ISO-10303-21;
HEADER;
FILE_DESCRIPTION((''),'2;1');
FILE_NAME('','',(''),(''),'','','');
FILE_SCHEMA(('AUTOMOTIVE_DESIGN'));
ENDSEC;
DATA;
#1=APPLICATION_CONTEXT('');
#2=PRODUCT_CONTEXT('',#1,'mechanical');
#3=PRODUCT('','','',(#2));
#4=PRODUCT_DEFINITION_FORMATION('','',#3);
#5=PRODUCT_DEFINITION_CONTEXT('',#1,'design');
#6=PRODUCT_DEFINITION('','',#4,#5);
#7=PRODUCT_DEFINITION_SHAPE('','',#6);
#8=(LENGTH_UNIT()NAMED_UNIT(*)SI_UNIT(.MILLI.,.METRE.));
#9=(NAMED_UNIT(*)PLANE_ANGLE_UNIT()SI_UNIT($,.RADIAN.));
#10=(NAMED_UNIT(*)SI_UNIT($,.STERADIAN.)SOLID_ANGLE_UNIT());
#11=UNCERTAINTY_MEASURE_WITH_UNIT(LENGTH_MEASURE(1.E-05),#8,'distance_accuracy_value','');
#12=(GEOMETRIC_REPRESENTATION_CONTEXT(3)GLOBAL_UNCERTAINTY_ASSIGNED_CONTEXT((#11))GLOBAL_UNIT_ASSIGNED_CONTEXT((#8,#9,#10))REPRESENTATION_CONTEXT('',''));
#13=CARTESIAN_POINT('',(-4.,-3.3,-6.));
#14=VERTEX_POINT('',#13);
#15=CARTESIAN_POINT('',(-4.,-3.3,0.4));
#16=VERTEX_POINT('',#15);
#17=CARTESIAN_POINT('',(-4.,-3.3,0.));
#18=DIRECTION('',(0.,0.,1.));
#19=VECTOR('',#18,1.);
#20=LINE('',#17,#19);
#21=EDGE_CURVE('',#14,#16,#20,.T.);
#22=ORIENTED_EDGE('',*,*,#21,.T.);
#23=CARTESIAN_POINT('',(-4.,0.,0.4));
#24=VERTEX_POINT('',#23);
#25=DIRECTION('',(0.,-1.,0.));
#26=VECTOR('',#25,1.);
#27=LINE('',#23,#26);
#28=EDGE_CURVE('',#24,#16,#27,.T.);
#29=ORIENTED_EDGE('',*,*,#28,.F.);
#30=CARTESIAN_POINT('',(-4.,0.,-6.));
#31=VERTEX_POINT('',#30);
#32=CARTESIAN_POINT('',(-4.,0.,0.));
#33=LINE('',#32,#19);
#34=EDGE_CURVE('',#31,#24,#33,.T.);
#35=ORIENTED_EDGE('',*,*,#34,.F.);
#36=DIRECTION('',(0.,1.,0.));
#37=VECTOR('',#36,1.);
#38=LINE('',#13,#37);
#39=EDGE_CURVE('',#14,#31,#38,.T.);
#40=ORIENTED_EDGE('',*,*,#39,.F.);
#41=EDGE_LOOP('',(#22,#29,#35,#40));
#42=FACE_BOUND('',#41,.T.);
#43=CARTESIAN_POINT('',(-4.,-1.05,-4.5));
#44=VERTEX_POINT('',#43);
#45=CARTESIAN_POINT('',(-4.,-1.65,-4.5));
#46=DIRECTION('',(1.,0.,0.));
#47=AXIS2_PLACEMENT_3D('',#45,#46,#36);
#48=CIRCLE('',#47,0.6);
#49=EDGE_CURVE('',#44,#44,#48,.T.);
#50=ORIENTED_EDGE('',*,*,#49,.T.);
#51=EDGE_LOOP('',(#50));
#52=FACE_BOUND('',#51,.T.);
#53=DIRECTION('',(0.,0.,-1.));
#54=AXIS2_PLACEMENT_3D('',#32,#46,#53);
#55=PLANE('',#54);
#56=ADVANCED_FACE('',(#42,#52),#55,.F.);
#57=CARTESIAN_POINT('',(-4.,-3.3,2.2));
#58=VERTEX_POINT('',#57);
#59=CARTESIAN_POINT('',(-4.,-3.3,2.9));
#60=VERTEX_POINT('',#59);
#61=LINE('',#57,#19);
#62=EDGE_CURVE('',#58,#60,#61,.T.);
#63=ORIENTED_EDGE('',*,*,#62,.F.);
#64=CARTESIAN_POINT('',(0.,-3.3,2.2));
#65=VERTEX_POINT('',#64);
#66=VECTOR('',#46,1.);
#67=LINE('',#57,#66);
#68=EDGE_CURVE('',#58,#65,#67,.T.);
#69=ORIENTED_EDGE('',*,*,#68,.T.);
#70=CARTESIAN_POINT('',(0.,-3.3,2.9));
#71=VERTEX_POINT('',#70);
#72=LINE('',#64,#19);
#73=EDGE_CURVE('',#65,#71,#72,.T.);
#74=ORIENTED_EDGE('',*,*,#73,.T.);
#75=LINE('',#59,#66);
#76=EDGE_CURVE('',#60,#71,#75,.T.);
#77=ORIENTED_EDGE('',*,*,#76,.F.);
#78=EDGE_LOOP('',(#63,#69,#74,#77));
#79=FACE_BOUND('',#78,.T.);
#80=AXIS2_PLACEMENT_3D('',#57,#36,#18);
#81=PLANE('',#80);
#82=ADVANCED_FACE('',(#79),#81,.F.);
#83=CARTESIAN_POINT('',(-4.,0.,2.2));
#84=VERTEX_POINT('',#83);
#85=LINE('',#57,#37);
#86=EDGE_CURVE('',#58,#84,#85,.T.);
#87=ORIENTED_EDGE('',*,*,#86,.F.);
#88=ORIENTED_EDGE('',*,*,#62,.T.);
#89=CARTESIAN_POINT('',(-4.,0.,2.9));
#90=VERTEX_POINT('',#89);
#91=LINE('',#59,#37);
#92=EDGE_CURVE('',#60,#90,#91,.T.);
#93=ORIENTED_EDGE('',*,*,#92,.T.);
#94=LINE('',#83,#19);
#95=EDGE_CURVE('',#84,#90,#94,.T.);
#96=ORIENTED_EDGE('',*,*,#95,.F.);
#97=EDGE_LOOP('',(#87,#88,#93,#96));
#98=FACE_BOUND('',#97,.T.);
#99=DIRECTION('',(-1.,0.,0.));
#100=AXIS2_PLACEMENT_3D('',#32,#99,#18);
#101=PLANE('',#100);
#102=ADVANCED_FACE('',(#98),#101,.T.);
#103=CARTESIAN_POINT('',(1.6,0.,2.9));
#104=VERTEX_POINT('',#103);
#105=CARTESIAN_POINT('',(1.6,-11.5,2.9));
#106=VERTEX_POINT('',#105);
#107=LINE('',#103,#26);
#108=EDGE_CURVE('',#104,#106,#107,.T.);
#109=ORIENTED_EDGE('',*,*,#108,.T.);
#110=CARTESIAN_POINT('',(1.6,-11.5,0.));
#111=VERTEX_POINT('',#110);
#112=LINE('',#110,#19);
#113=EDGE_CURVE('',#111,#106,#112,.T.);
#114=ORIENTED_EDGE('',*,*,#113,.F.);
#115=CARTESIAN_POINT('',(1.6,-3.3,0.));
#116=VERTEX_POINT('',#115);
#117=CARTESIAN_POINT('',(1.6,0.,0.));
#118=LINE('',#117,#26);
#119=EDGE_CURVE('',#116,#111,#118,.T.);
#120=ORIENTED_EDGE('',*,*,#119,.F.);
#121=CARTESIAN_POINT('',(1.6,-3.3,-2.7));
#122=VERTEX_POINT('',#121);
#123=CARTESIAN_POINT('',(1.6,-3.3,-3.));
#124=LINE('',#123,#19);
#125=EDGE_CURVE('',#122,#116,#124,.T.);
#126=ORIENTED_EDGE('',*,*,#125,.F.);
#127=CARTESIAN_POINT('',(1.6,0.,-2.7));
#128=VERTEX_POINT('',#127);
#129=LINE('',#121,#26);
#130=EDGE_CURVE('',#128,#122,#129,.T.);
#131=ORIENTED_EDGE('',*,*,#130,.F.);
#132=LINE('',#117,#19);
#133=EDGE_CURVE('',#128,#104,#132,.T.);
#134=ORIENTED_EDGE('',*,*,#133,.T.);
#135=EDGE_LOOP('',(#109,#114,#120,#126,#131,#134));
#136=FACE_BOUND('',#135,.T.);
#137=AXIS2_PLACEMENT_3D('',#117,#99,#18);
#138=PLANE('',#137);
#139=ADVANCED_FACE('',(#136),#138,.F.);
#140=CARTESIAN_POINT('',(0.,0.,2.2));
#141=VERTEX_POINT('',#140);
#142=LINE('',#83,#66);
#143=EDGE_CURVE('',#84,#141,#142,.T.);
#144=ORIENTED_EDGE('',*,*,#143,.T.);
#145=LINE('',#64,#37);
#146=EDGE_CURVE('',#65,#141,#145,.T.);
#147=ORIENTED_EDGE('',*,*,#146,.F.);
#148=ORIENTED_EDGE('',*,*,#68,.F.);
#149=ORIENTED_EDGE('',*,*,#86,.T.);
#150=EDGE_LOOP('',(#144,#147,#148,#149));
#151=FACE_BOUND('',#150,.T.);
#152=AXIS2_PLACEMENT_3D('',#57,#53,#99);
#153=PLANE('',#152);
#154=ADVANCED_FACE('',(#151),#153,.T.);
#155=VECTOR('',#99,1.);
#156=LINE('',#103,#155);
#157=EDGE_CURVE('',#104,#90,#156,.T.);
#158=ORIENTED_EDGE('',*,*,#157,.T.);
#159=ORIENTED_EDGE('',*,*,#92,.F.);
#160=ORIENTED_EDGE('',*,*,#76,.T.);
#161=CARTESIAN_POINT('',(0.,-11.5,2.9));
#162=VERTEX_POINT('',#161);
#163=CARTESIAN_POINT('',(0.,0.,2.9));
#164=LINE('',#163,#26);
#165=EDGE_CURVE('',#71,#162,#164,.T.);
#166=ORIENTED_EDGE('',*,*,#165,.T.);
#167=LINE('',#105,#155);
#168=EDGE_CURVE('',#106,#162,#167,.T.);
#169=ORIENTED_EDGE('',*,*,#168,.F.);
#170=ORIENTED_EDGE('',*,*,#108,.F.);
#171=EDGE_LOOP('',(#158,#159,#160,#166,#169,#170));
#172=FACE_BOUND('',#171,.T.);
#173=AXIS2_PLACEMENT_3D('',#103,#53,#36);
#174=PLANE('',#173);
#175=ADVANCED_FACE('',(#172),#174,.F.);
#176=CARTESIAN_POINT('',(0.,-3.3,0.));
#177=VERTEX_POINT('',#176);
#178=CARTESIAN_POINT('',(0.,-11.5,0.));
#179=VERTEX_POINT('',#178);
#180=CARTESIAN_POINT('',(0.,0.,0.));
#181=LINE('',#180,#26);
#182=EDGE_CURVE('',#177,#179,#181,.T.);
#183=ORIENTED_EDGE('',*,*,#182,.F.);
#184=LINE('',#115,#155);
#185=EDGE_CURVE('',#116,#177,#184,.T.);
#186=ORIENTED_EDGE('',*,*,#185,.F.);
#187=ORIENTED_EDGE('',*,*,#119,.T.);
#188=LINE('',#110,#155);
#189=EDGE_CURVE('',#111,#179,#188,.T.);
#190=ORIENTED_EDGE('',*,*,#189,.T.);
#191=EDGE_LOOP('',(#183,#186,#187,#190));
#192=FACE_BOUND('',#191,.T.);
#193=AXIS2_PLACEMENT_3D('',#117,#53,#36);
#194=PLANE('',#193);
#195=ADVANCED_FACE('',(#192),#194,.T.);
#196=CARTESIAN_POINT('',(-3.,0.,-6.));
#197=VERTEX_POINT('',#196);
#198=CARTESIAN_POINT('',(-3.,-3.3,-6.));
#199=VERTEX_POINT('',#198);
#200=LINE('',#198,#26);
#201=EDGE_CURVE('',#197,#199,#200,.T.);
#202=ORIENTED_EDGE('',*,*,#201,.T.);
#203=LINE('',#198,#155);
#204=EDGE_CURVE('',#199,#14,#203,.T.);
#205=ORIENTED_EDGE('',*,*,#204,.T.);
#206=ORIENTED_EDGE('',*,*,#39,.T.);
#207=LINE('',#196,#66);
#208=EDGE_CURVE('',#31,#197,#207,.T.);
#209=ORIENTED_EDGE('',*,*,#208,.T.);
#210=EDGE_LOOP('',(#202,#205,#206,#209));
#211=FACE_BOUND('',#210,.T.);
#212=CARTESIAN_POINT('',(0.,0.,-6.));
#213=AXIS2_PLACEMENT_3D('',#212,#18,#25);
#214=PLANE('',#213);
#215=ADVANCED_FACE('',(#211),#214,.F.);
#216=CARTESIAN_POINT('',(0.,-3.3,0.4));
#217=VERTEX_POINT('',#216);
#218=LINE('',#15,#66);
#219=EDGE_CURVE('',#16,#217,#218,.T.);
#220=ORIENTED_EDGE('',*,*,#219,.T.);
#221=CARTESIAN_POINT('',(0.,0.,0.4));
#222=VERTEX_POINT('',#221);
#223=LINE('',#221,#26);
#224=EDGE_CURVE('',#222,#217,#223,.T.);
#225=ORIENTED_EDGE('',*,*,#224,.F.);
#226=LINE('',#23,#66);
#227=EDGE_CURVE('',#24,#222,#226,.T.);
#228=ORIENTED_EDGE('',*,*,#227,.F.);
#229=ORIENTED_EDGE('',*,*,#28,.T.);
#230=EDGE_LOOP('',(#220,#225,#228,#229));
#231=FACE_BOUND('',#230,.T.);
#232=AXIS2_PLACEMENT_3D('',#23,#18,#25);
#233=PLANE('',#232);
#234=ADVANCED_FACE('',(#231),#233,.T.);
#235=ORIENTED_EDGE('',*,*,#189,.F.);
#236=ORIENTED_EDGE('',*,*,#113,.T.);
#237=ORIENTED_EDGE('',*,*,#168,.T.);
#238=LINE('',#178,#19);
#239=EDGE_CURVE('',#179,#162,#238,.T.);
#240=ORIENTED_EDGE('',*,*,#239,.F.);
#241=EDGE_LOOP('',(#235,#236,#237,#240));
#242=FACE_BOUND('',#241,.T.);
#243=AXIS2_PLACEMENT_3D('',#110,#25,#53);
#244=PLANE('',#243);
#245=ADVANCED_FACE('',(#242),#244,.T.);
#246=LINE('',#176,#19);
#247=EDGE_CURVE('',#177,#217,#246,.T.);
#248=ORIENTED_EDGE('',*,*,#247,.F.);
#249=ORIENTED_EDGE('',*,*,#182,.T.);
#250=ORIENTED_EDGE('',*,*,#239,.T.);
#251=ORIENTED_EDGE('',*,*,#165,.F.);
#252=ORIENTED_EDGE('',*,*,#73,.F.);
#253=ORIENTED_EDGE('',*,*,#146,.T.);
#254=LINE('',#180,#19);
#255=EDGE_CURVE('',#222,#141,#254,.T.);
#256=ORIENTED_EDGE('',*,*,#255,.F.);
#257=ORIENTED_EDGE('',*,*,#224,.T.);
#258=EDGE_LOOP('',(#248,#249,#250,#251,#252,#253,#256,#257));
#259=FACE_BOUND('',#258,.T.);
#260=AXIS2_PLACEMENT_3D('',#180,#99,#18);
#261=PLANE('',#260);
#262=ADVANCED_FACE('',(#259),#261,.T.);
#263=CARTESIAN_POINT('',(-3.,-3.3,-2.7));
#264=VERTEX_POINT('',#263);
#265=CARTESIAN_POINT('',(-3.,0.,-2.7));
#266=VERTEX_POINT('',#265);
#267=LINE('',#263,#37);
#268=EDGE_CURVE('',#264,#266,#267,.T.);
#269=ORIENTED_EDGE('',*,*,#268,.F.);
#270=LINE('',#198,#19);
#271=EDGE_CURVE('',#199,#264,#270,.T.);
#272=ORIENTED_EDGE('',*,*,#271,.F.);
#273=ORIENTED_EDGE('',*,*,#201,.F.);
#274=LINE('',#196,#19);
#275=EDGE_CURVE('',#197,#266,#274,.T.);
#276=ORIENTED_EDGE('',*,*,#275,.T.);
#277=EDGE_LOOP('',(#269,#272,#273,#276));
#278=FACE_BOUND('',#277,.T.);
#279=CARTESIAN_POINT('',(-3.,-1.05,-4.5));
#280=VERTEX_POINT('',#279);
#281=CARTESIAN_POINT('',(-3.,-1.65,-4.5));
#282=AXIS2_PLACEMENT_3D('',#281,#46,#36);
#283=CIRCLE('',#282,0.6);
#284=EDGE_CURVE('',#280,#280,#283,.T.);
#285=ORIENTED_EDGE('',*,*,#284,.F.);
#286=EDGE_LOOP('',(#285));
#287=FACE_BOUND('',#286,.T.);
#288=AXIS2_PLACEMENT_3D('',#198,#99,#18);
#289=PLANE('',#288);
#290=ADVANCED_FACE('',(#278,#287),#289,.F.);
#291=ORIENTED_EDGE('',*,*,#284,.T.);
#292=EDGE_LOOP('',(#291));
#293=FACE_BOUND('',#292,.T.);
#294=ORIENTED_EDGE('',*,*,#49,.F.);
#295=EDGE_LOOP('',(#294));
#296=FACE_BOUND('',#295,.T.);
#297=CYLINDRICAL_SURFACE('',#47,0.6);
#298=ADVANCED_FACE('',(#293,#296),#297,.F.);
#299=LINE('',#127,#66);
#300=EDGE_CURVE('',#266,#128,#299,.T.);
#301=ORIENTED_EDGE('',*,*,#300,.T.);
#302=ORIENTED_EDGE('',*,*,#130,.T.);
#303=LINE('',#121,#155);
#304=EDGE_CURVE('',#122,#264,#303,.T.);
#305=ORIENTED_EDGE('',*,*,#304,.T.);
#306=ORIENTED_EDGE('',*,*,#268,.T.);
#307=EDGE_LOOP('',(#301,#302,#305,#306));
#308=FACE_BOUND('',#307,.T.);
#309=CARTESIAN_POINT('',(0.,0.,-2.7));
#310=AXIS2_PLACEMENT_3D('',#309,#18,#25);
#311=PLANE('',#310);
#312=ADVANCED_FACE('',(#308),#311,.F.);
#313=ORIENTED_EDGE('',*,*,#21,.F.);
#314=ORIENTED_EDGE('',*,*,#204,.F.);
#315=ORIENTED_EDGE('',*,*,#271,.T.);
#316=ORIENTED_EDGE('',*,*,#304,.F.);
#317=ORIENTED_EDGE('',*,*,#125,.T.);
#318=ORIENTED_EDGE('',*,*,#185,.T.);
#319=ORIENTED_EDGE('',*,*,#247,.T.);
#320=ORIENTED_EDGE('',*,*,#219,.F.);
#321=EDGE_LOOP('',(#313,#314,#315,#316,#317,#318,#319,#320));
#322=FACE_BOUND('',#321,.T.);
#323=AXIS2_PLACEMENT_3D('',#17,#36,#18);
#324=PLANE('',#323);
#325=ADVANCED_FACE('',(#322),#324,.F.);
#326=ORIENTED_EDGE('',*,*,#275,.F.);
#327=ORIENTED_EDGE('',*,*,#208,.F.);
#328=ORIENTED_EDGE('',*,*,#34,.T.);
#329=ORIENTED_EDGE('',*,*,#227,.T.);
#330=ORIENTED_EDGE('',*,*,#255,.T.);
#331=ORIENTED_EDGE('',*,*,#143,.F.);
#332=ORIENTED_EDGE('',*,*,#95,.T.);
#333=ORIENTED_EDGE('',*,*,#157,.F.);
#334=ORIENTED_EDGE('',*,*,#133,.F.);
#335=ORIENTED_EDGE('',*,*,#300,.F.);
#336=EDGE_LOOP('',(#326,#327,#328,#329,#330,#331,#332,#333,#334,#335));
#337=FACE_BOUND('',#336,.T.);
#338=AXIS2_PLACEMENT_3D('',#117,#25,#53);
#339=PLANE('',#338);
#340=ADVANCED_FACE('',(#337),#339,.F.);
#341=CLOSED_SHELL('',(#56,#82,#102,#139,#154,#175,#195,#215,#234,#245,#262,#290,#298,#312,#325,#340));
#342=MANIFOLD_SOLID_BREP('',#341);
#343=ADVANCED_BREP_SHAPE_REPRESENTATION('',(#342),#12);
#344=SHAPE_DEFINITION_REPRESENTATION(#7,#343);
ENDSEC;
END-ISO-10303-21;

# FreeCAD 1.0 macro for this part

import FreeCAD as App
import Part
import Sketcher
from FreeCAD import Vector
Q = App.Units.Quantity

doc = App.newDocument("Part")
body = doc.addObject("PartDesign::Body", "Body")

# Sketch on YZ plane
sketch1 = doc.addObject("Sketcher::SketchObject", "Sketch")
body.addObject(sketch1)
sketch1.AttachmentSupport = (doc.YZ_Plane, [""])
sketch1.MapMode = "FlatFace"
sketch1.addGeometry([
    Part.LineSegment(Vector(0, 2.9, 0), Vector(-11.5, 2.9, 0)),
    Part.LineSegment(Vector(-11.5, 2.9, 0), Vector(-11.5, 0, 0)),
    Part.LineSegment(Vector(-11.5, 0, 0), Vector(0, 0, 0)),
    Part.LineSegment(Vector(0, 0, 0), Vector(0, 2.9, 0)),
], False)
sketch1.addConstraint([
    Sketcher.Constraint("Coincident", 0, 2, 1, 1),
    Sketcher.Constraint("Coincident", 1, 2, 2, 1),
    Sketcher.Constraint("Coincident", 2, 2, 3, 1),
    Sketcher.Constraint("Coincident", 3, 2, 0, 1),
    Sketcher.Constraint("Horizontal", 0),
    Sketcher.Constraint("Vertical", 1),
    Sketcher.Constraint("Horizontal", 2),
    Sketcher.Constraint("Vertical", 3),
    Sketcher.Constraint("Coincident", 2, 2, -1, 1),
    Sketcher.Constraint("DistanceX", 0, 2, 0, 1, Q("11.5 mm")),
    Sketcher.Constraint("DistanceY", 1, 2, 1, 1, Q("2.9 mm")),
])
pad1 = doc.addObject("PartDesign::Pad", "Pad")
body.addObject(pad1)
pad1.Profile = sketch1
pad1.Length = 1.6

# Sketch on YZ plane
sketch2 = doc.addObject("Sketcher::SketchObject", "Sketch001")
body.addObject(sketch2)
sketch2.AttachmentSupport = (doc.YZ_Plane, [""])
sketch2.MapMode = "FlatFace"
sketch2.addGeometry([
    Part.LineSegment(Vector(0, 2.2, 0), Vector(-3.3, 2.2, 0)),  # 0
    Part.LineSegment(Vector(-3.3, 2.2, 0), Vector(-3.3, 2.9, 0)),  # 1
    Part.LineSegment(Vector(-3.3, 2.9, 0), Vector(0, 2.9, 0)),  # 2
    Part.LineSegment(Vector(0, 2.9, 0), Vector(0, 2.2, 0)),  # 3
    Part.LineSegment(Vector(0, 0, 0), Vector(-3.3, 0, 0)),  # 4
    Part.LineSegment(Vector(-3.3, 0, 0), Vector(-3.3, 0.4, 0)),  # 5
    Part.LineSegment(Vector(-3.3, 0.4, 0), Vector(0, 0.4, 0)),  # 6
    Part.LineSegment(Vector(0, 0.4, 0), Vector(0, 0, 0)),  # 7
], False)
sketch2.addConstraint([
    Sketcher.Constraint("Coincident", 0, 2, 1, 1),
    Sketcher.Constraint("Coincident", 1, 2, 2, 1),
    Sketcher.Constraint("Coincident", 2, 2, 3, 1),
    Sketcher.Constraint("Coincident", 3, 2, 0, 1),
    Sketcher.Constraint("Coincident", 4, 2, 5, 1),
    Sketcher.Constraint("Coincident", 5, 2, 6, 1),
    Sketcher.Constraint("Coincident", 6, 2, 7, 1),
    Sketcher.Constraint("Coincident", 7, 2, 4, 1),
    Sketcher.Constraint("Horizontal", 0),
    Sketcher.Constraint("Vertical", 1),
    Sketcher.Constraint("Horizontal", 2),
    Sketcher.Constraint("Vertical", 3),
    Sketcher.Constraint("Horizontal", 4),
    Sketcher.Constraint("Vertical", 5),
    Sketcher.Constraint("Horizontal", 6),
    Sketcher.Constraint("Vertical", 7),
    Sketcher.Constraint("Coincident", 7, 2, -1, 1),
    Sketcher.Constraint("PointOnObject", 2, 2, -2),
    Sketcher.Constraint("Vertical", 1, 2, 4, 2),
    Sketcher.Constraint("DistanceX", 0, 2, 0, 1, Q("3.3 mm")),
    Sketcher.Constraint("DistanceY", 1, 1, 1, 2, Q("0.7 mm")),
    Sketcher.Constraint("DistanceY", 5, 1, 5, 2, Q("0.4 mm")),
    Sketcher.Constraint("DistanceY", -1, 1, 0, 2, Q("2.2 mm")),
])
pad2 = doc.addObject("PartDesign::Pad", "Pad001")
body.addObject(pad2)
pad2.Profile = sketch2
pad2.Length = 4
pad2.Reversed = True

# Sketch on XY plane
sketch3 = doc.addObject("Sketcher::SketchObject", "Sketch002")
body.addObject(sketch3)
sketch3.AttachmentSupport = (doc.XY_Plane, [""])
sketch3.MapMode = "FlatFace"
sketch3.addGeometry([
    Part.LineSegment(Vector(1.6, 0, 0), Vector(1.6, -3.3, 0)),
    Part.LineSegment(Vector(1.6, -3.3, 0), Vector(-4, -3.3, 0)),
    Part.LineSegment(Vector(-4, -3.3, 0), Vector(-4, 0, 0)),
    Part.LineSegment(Vector(-4, 0, 0), Vector(1.6, 0, 0)),
], False)
sketch3.addConstraint([
    Sketcher.Constraint("Coincident", 0, 2, 1, 1),
    Sketcher.Constraint("Coincident", 1, 2, 2, 1),
    Sketcher.Constraint("Coincident", 2, 2, 3, 1),
    Sketcher.Constraint("Coincident", 3, 2, 0, 1),
    Sketcher.Constraint("Vertical", 0),
    Sketcher.Constraint("Horizontal", 1),
    Sketcher.Constraint("Vertical", 2),
    Sketcher.Constraint("Horizontal", 3),
    Sketcher.Constraint("PointOnObject", 2, 2, -1),
    Sketcher.Constraint("DistanceX", 1, 2, 1, 1, Q("5.6 mm")),
    Sketcher.Constraint("DistanceY", 0, 2, 0, 1, Q("3.3 mm")),
    Sketcher.Constraint("DistanceX", 1, 2, -1, 1, Q("4 mm")),
])
pad3 = doc.addObject("PartDesign::Pad", "Pad002")
body.addObject(pad3)
pad3.Profile = sketch3
pad3.Length = 3
pad3.Reversed = True

# Sketch on XY plane
sketch4 = doc.addObject("Sketcher::SketchObject", "Sketch003")
body.addObject(sketch4)
sketch4.AttachmentSupport = (doc.XY_Plane, [""])
sketch4.MapMode = "FlatFace"
sketch4.AttachmentOffset = App.Placement(Vector(0, 0, -3), App.Rotation())
sketch4.addGeometry([
    Part.LineSegment(Vector(-3, 0, 0), Vector(-3, -3.3, 0)),
    Part.LineSegment(Vector(-3, -3.3, 0), Vector(-4, -3.3, 0)),
    Part.LineSegment(Vector(-4, -3.3, 0), Vector(-4, 0, 0)),
    Part.LineSegment(Vector(-4, 0, 0), Vector(-3, 0, 0)),
], False)
sketch4.addConstraint([
    Sketcher.Constraint("Coincident", 0, 2, 1, 1),
    Sketcher.Constraint("Coincident", 1, 2, 2, 1),
    Sketcher.Constraint("Coincident", 2, 2, 3, 1),
    Sketcher.Constraint("Coincident", 3, 2, 0, 1),
    Sketcher.Constraint("Vertical", 0),
    Sketcher.Constraint("Horizontal", 1),
    Sketcher.Constraint("Vertical", 2),
    Sketcher.Constraint("Horizontal", 3),
    Sketcher.Constraint("PointOnObject", 2, 2, -1),
    Sketcher.Constraint("DistanceX", 1, 2, 1, 1, Q("1 mm")),
    Sketcher.Constraint("DistanceY", 0, 2, 0, 1, Q("3.3 mm")),
    Sketcher.Constraint("DistanceX", 0, 2, -1, 1, Q("3 mm")),
])
pad4 = doc.addObject("PartDesign::Pad", "Pad003")
body.addObject(pad4)
pad4.Profile = sketch4
pad4.Length = 3
pad4.Reversed = True

# Sketch on YZ plane
sketch5 = doc.addObject("Sketcher::SketchObject", "Sketch004")
body.addObject(sketch5)
sketch5.AttachmentSupport = (doc.YZ_Plane, [""])
sketch5.MapMode = "FlatFace"
sketch5.AttachmentOffset = App.Placement(Vector(0, 0, -3), App.Rotation())
sketch5.addGeometry(Part.Circle(Vector(-1.6, -4.5, 0), Vector(0, 0, 1), 0.6), False)
sketch5.addConstraint([
    Sketcher.Constraint("Diameter", 0, Q("1.2 mm")),
    Sketcher.Constraint("DistanceY", 0, 3, -1, 1, Q("4.5 mm")),
    Sketcher.Constraint("DistanceX", 0, 3, -1, 1, Q("1.65 mm")),
])
pocket1 = doc.addObject("PartDesign::Pocket", "Pocket")
body.addObject(pocket1)
pocket1.Profile = sketch5
pocket1.Type = "ThroughAll"

# Sketch on XY plane
sketch6 = doc.addObject("Sketcher::SketchObject", "Sketch005")
body.addObject(sketch6)
sketch6.AttachmentSupport = (doc.XY_Plane, [""])
sketch6.MapMode = "FlatFace"
sketch6.AttachmentOffset = App.Placement(Vector(0, 0, -3), App.Rotation())
sketch6.addGeometry([
    Part.LineSegment(Vector(1.6, 0, 0), Vector(1.6, -3.3, 0)),
    Part.LineSegment(Vector(1.6, -3.3, 0), Vector(-3, -3.3, 0)),
    Part.LineSegment(Vector(-3, -3.3, 0), Vector(-3, 0, 0)),
    Part.LineSegment(Vector(-3, 0, 0), Vector(1.6, 0, 0)),
], False)
sketch6.addConstraint([
    Sketcher.Constraint("Coincident", 0, 2, 1, 1),
    Sketcher.Constraint("Coincident", 1, 2, 2, 1),
    Sketcher.Constraint("Coincident", 2, 2, 3, 1),
    Sketcher.Constraint("Coincident", 3, 2, 0, 1),
    Sketcher.Constraint("Vertical", 0),
    Sketcher.Constraint("Horizontal", 1),
    Sketcher.Constraint("Vertical", 2),
    Sketcher.Constraint("Horizontal", 3),
    Sketcher.Constraint("PointOnObject", 2, 2, -1),
    Sketcher.Constraint("DistanceX", 1, 2, 1, 1, Q("4.6 mm")),
    Sketcher.Constraint("DistanceY", 0, 2, 0, 1, Q("3.3 mm")),
    Sketcher.Constraint("DistanceX", 1, 2, -1, 1, Q("3 mm")),
])
pocket2 = doc.addObject("PartDesign::Pocket", "Pocket001")
body.addObject(pocket2)
pocket2.Profile = sketch6
pocket2.Length = 0.3
pocket2.Reversed = True

doc.recompute()
